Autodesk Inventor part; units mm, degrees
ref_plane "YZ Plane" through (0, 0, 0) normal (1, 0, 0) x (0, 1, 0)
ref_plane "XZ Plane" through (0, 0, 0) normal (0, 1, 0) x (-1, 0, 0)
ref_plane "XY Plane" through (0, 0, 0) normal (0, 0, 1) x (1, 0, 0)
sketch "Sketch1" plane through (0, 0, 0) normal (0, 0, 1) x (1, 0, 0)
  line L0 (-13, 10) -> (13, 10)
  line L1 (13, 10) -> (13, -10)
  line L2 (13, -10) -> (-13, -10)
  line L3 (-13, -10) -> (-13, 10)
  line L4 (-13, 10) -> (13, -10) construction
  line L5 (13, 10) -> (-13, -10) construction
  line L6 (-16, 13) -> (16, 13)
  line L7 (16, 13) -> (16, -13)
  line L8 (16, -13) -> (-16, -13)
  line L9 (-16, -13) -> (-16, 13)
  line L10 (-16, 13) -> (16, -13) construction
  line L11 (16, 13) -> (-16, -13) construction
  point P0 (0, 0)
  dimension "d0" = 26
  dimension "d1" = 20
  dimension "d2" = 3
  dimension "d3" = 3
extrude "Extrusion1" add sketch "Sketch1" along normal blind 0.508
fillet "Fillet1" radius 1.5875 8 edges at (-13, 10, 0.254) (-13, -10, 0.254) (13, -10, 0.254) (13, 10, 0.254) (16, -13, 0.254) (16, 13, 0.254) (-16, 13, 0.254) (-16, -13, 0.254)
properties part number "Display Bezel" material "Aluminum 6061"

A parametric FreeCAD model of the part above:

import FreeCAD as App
import Part
import Sketcher

V = App.Vector


def edges_at(feature, points):
    """Names of the edges that pass closest to the given points."""
    edges = feature.Shape.Edges
    near = lambda p: min(range(len(edges)), key=lambda i: edges[i].distToShape(Part.Vertex(*p))[0])
    return sorted({f"Edge{near(p) + 1}" for p in points})


def add_polygon(sketch, points):
    """Adds a closed chain of lines whose ends are joined by coincident constraints."""
    first, n = sketch.GeometryCount, len(points)
    for a, b in zip(points, points[1:] + points[:1]):
        sketch.addGeometry(Part.LineSegment(App.Vector(*a, 0), App.Vector(*b, 0)), False)
    for i in range(n):
        sketch.addConstraint(Sketcher.Constraint("Coincident", first + i, 2, first + (i + 1) % n, 1))

doc = App.newDocument("Part")
body = doc.addObject("PartDesign::Body", "Body")

sketch1 = body.newObject("Sketcher::SketchObject", "Sketch")
sketch1.AttachmentSupport = (doc.getObject("XY_Plane"), [""])
sketch1.MapMode = "FlatFace"
add_polygon(sketch1, [(16, 13), (-16, 13), (-16, -13), (16, -13)])
add_polygon(sketch1, [(-13, -10), (-13, 10), (13, 10), (13, -10)])
sketch1.addConstraint(Sketcher.Constraint("Horizontal", 0))
sketch1.addConstraint(Sketcher.Constraint("Vertical", 1))
sketch1.addConstraint(Sketcher.Constraint("Horizontal", 2))
sketch1.addConstraint(Sketcher.Constraint("Vertical", 3))
sketch1.addConstraint(Sketcher.Constraint("Vertical", 4))
sketch1.addConstraint(Sketcher.Constraint("Horizontal", 5))
sketch1.addConstraint(Sketcher.Constraint("Vertical", 6))
sketch1.addConstraint(Sketcher.Constraint("Horizontal", 7))
sketch1.addConstraint(Sketcher.Constraint("Symmetric", 0, 2, 2, 2, -1, 1))
sketch1.addConstraint(Sketcher.Constraint("Symmetric", 4, 2, 6, 2, -1, 1))
sketch1.addConstraint(Sketcher.Constraint("Equal", 7, 1))
sketch1.addConstraint(Sketcher.Constraint("DistanceX", 5, 1, 5, 2, 26.0))
sketch1.addConstraint(Sketcher.Constraint("DistanceY", 4, 1, 4, 2, 20.0))
sketch1.addConstraint(Sketcher.Constraint("DistanceX", 0, 2, 4, 2, 3.0))
pad1 = body.newObject("PartDesign::Pad", "Pad")
pad1.Profile = sketch1
pad1.Length = 0.508
doc.recompute()

fillet = body.newObject("PartDesign::Fillet", "Fillet")
fillet.Base = (pad1, edges_at(pad1, [
    (-13, 10, 0.254),
    (-13, -10, 0.254),
    (13, -10, 0.254),
    (13, 10, 0.254),
    (16, -13, 0.254),
    (16, 13, 0.254),
    (-16, 13, 0.254),
    (-16, -13, 0.254),
]))
fillet.Radius = 1.5875

doc.recompute()
